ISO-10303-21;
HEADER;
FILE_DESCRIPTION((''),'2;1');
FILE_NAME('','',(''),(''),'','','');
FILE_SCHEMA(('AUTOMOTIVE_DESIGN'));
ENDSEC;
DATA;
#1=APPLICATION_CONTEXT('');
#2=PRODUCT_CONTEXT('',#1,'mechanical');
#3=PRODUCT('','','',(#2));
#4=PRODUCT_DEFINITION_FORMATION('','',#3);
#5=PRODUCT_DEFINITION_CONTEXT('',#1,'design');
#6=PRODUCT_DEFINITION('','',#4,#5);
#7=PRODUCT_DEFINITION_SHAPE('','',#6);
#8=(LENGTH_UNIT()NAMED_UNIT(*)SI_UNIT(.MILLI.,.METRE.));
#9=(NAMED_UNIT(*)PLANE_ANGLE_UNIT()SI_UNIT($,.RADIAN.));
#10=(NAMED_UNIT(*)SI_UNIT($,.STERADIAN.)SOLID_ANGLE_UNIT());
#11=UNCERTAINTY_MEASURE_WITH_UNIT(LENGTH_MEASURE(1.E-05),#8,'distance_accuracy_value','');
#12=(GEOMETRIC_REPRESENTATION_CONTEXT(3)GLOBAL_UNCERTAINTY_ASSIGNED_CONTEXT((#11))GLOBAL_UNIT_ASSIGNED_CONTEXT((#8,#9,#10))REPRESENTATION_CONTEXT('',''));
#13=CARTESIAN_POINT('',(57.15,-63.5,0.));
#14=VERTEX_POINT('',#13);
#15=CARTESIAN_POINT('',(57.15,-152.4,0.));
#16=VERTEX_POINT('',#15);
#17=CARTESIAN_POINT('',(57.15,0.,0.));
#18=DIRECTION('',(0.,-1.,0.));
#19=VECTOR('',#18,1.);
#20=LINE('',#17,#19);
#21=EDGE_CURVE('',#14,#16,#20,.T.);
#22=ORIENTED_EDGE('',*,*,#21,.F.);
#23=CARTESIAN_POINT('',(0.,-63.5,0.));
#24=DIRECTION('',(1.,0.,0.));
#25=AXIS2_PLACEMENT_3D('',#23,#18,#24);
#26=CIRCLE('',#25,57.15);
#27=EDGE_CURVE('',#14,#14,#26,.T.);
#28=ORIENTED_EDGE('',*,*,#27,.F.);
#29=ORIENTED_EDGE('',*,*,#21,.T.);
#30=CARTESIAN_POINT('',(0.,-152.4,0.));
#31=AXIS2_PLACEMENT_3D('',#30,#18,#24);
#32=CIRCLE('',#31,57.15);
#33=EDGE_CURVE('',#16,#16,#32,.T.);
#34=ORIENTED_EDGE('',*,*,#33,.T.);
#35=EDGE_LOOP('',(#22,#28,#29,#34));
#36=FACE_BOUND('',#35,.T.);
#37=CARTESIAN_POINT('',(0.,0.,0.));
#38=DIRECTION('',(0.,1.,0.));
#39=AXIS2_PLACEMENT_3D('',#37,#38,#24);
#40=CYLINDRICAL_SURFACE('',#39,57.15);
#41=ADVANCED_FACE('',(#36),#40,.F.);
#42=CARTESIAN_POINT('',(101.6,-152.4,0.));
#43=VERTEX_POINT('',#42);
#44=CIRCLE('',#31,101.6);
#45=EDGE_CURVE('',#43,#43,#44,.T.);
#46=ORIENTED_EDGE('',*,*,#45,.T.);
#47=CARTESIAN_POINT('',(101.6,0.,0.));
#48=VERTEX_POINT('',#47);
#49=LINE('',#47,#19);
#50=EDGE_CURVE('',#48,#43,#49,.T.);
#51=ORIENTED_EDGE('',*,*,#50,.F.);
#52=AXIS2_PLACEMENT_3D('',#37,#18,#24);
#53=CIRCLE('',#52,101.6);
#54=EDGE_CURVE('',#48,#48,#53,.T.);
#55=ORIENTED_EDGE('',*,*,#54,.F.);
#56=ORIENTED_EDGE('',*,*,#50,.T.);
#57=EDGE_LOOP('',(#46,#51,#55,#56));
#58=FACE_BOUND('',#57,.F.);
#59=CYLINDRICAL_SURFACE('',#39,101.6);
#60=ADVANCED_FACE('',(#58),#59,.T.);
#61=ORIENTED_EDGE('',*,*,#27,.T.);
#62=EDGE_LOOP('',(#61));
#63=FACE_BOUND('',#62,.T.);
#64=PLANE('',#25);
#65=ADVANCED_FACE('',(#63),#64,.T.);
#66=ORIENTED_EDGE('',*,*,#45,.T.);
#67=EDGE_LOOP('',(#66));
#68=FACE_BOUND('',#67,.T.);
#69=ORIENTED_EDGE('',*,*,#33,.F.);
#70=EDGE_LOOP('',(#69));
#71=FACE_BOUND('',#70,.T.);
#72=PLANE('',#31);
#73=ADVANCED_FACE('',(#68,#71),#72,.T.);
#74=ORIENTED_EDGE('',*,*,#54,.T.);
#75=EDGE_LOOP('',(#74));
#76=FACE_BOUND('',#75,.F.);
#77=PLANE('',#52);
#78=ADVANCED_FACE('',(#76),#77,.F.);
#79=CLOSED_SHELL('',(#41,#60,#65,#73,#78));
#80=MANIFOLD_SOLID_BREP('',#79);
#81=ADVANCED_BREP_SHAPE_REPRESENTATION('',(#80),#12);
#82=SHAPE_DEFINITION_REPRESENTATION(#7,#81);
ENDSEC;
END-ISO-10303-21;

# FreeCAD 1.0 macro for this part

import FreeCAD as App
import Part
import Sketcher
Q = App.Units.Quantity

doc = App.newDocument("Part")
body = doc.addObject("PartDesign::Body", "Body")

sketch1 = body.newObject("Sketcher::SketchObject", "Sketch")
sketch1.AttachmentSupport = (doc.getObject("XZ_Plane"), [""])
sketch1.MapMode = "FlatFace"
sketch1.addGeometry(Part.Circle(App.Vector(0, 0, 0), App.Vector(0, 0, 1), 101.6), False)
sketch1.addGeometry(Part.Circle(App.Vector(0, 0, 0), App.Vector(0, 0, 1), 57.15), False)
sketch1.addConstraint(Sketcher.Constraint("Coincident", 0, 3, -1, 1))
sketch1.addConstraint(Sketcher.Constraint("Coincident", 1, 3, -1, 1))
sketch1.addConstraint(Sketcher.Constraint("Diameter", 0, Q("8 in")))
sketch1.addConstraint(Sketcher.Constraint("Diameter", 1, Q("4.5 in")))
pad1 = body.newObject("PartDesign::Pad", "Pad")
pad1.Profile = sketch1
pad1.Length = Q("6 in")

sketch2 = body.newObject("Sketcher::SketchObject", "Sketch001")
sketch2.AttachmentSupport = (doc.getObject("XZ_Plane"), [""])
sketch2.MapMode = "FlatFace"
sketch2.addGeometry(Part.Circle(App.Vector(0, 0, 0), App.Vector(0, 0, 1), 57.15), False)
sketch2.addConstraint(Sketcher.Constraint("Coincident", 0, 3, -1, 1))
sketch2.addConstraint(Sketcher.Constraint("Diameter", 0, Q("4.5 in")))
pad2 = body.newObject("PartDesign::Pad", "Pad001")
pad2.Profile = sketch2
pad2.Length = Q("2.5 in")

doc.recompute()
